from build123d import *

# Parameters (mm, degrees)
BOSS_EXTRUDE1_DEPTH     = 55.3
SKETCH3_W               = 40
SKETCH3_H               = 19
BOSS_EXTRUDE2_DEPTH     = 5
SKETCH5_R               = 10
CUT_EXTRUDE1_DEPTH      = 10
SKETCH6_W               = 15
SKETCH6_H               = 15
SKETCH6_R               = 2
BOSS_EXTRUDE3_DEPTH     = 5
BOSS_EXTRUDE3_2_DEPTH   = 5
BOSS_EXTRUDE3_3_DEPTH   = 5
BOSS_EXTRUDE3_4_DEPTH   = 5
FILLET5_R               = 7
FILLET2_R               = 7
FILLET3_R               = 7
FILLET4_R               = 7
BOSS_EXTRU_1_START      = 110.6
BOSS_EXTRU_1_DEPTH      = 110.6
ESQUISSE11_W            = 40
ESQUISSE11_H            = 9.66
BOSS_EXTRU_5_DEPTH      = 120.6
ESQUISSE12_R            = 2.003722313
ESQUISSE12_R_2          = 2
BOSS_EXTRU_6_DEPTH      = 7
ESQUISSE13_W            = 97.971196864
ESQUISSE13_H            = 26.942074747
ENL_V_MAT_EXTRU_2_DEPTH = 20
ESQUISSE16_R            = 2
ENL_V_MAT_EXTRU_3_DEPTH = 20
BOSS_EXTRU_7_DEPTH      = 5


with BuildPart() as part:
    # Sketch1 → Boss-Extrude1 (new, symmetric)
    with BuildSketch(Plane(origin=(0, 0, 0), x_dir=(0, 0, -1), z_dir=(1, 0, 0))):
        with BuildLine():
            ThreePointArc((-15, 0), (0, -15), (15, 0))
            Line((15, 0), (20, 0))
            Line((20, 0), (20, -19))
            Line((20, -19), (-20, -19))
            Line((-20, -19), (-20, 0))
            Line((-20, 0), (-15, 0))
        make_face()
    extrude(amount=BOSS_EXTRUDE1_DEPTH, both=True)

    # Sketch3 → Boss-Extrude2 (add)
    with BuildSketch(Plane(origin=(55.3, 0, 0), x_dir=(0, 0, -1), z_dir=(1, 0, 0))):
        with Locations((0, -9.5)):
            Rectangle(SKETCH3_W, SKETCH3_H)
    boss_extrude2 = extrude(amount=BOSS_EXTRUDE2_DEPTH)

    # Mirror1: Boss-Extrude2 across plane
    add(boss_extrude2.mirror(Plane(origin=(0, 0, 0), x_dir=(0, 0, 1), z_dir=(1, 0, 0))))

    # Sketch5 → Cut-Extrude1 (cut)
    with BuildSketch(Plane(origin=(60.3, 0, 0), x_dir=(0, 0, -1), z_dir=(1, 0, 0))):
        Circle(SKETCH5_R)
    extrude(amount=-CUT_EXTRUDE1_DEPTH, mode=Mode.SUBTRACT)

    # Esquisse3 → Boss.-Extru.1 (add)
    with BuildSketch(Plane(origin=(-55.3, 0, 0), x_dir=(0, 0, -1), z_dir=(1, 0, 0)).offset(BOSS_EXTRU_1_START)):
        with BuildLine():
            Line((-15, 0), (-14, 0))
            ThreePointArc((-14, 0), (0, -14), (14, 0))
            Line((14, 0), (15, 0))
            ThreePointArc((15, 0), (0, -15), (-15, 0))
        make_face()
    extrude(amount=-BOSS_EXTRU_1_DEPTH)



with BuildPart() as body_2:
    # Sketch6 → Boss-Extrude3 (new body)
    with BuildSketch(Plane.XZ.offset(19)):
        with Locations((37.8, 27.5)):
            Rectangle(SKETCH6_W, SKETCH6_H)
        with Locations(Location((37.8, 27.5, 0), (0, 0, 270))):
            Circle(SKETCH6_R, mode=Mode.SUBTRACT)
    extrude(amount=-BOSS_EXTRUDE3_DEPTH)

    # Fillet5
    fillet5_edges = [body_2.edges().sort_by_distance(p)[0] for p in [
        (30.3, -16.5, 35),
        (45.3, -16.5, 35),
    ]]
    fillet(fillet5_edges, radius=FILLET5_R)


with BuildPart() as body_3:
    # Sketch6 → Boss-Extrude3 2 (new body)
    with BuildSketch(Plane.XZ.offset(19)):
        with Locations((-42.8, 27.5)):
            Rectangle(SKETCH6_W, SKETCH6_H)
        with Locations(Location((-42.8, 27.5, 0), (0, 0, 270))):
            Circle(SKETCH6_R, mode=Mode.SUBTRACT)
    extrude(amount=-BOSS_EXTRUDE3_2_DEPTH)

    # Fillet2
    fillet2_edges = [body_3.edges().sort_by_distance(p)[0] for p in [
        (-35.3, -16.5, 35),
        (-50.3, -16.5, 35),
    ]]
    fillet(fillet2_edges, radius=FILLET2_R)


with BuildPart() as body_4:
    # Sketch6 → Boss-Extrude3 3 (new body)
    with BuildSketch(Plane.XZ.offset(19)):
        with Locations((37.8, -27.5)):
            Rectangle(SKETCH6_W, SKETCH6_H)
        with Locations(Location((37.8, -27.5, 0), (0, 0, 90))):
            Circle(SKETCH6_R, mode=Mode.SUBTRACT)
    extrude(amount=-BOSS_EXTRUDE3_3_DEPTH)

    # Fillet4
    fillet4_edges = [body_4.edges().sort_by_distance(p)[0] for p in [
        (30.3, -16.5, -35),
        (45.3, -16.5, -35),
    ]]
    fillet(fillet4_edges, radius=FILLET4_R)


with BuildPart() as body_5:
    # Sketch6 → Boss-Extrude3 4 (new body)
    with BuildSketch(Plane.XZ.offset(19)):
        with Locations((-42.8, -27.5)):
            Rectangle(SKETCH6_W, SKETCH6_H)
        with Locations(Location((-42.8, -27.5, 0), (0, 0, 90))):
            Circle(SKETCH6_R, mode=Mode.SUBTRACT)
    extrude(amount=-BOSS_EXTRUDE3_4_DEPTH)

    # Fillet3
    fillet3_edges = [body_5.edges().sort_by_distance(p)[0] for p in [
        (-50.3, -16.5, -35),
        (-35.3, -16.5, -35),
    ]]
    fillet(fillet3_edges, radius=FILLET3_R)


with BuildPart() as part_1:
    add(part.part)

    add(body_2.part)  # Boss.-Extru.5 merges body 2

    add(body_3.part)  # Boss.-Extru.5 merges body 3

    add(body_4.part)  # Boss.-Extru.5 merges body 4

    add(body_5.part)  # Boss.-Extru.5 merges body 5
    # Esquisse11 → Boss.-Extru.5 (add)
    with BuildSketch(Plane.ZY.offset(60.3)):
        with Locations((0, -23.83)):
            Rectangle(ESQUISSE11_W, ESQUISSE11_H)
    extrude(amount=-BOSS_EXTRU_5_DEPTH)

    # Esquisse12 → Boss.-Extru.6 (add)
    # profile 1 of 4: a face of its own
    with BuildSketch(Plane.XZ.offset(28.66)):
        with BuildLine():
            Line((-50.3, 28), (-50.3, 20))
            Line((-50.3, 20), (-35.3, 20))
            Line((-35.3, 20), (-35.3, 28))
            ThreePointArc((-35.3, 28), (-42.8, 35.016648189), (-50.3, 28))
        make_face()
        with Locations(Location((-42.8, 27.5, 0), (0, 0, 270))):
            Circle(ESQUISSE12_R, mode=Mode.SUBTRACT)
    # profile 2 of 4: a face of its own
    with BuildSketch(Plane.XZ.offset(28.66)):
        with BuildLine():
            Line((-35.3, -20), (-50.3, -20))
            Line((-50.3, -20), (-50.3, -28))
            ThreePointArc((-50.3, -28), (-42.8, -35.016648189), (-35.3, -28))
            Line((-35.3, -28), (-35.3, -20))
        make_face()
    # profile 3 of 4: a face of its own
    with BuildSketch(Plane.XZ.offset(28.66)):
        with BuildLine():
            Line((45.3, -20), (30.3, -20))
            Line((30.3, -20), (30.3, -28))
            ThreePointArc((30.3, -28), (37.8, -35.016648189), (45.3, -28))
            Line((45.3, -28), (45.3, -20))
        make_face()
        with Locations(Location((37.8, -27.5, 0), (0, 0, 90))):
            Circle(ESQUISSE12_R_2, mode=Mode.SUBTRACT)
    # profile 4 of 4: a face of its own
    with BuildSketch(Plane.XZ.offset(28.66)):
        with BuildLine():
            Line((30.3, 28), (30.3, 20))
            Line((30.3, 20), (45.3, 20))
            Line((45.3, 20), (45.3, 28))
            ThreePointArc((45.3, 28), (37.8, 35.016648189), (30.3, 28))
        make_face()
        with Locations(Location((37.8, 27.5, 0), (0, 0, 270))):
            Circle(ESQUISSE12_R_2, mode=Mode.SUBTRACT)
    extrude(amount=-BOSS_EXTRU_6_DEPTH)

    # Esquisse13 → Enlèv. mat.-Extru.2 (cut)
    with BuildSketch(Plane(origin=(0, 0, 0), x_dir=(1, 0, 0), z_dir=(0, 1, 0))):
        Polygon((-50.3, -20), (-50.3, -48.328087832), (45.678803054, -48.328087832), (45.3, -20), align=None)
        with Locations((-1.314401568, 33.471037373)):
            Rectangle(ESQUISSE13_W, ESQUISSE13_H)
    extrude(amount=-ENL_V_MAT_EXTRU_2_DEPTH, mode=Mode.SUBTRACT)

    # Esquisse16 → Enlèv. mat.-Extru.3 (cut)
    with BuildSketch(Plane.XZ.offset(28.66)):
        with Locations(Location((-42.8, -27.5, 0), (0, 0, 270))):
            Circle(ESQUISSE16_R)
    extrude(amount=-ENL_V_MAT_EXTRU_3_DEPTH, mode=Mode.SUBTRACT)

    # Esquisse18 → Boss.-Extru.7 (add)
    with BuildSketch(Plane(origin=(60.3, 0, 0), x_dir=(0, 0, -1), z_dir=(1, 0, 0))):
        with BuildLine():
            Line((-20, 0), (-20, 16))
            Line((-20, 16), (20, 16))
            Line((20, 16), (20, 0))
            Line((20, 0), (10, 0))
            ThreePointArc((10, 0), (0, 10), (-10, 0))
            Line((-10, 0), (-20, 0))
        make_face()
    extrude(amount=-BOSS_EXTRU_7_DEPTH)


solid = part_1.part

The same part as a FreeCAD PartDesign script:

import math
import FreeCAD as App
import Part
import Sketcher


def edges_at(feature, points):
    """Names of the edges that pass closest to the given points."""
    edges = feature.Shape.Edges
    near = lambda p: min(range(len(edges)), key=lambda i: edges[i].distToShape(Part.Vertex(*p))[0])
    return sorted({f"Edge{near(p) + 1}" for p in points})

doc = App.newDocument("Part")
body = doc.addObject("PartDesign::Body", "Body")

sketch1 = body.newObject("Sketcher::SketchObject", "Sketch")
sketch1.AttachmentSupport = (doc.getObject("YZ_Plane"), [""])
sketch1.MapMode = "FlatFace"
sketch1.addGeometry([
    Part.ArcOfCircle(Part.Circle(App.Vector(0, 0, 0), App.Vector(0, 0, 1), 15), math.radians(90), math.radians(270)),
    Part.LineSegment(App.Vector(0, 15, 0), App.Vector(0, 20, 0)),
    Part.LineSegment(App.Vector(0, 20, 0), App.Vector(-19, 20, 0)),
    Part.LineSegment(App.Vector(-19, 20, 0), App.Vector(-19, -20, 0)),
    Part.LineSegment(App.Vector(-19, -20, 0), App.Vector(0, -20, 0)),
    Part.LineSegment(App.Vector(0, -20, 0), App.Vector(0, -15, 0)),
], False)
sketch1.addConstraint([
    Sketcher.Constraint("Coincident", 0, 1, 1, 1),
    Sketcher.Constraint("Coincident", 1, 2, 2, 1),
    Sketcher.Constraint("Coincident", 2, 2, 3, 1),
    Sketcher.Constraint("Coincident", 3, 2, 4, 1),
    Sketcher.Constraint("Coincident", 4, 2, 5, 1),
    Sketcher.Constraint("Coincident", 5, 2, 0, 2),
    Sketcher.Constraint("Vertical", 1),
    Sketcher.Constraint("Horizontal", 2),
    Sketcher.Constraint("Vertical", 3),
    Sketcher.Constraint("Horizontal", 4),
    Sketcher.Constraint("Vertical", 5),
    Sketcher.Constraint("Coincident", 0, 3, -1, 1),
    Sketcher.Constraint("Symmetric", 1, 2, 4, 2, -1, 1),
    Sketcher.Constraint("PointOnObject", 0, 1, -2),
    Sketcher.Constraint("Radius", 0, 15.0),
    Sketcher.Constraint("DistanceX", 2, 2, 2, 1, 19.0),
    Sketcher.Constraint("DistanceY", 1, 1, 1, 2, 5.0),
])
pad1 = body.newObject("PartDesign::Pad", "Pad")
pad1.Profile = sketch1
pad1.Length = 110.6
pad1.Midplane = True

sketch2 = body.newObject("Sketcher::SketchObject", "Sketch001")
sketch2.AttachmentSupport = (doc.getObject("YZ_Plane"), [""])
sketch2.MapMode = "FlatFace"
sketch2.AttachmentOffset = App.Placement(App.Vector(0, 0, 55.3), App.Rotation())
sketch2.addGeometry([
    Part.LineSegment(App.Vector(0, 20, 0), App.Vector(-19, 20, 0)),
    Part.LineSegment(App.Vector(-19, 20, 0), App.Vector(-19, -20, 0)),
    Part.LineSegment(App.Vector(-19, -20, 0), App.Vector(0, -20, 0)),
    Part.LineSegment(App.Vector(0, -20, 0), App.Vector(0, 20, 0)),
], False)
sketch2.addConstraint([
    Sketcher.Constraint("Coincident", 0, 2, 1, 1),
    Sketcher.Constraint("Coincident", 1, 2, 2, 1),
    Sketcher.Constraint("Coincident", 2, 2, 3, 1),
    Sketcher.Constraint("Coincident", 3, 2, 0, 1),
    Sketcher.Constraint("Horizontal", 0),
    Sketcher.Constraint("Vertical", 1),
    Sketcher.Constraint("Horizontal", 2),
    Sketcher.Constraint("Vertical", 3),
    Sketcher.Constraint("Symmetric", 2, 2, 3, 2, -1, 1),
    Sketcher.Constraint("DistanceX", 0, 2, 0, 1, 19.0),
    Sketcher.Constraint("DistanceY", 1, 2, 1, 1, 40.0),
])
pad2 = body.newObject("PartDesign::Pad", "Pad001")
pad2.Profile = sketch2
pad2.Length = 5
doc.recompute()

mirrored = body.newObject("PartDesign::Mirrored", "Mirrored")
mirrored.Originals = [pad2]
mirrored.MirrorPlane = (doc.getObject("YZ_Plane"), [""])
body.Tip = mirrored

sketch3 = body.newObject("Sketcher::SketchObject", "Sketch002")
sketch3.AttachmentSupport = (doc.getObject("YZ_Plane"), [""])
sketch3.MapMode = "FlatFace"
sketch3.AttachmentOffset = App.Placement(App.Vector(0, 0, 60.3), App.Rotation())
sketch3.addGeometry(Part.Circle(App.Vector(0, 0, 0), App.Vector(0, 0, 1), 10), False)
sketch3.addConstraint([
    Sketcher.Constraint("Coincident", 0, 3, -1, 1),
    Sketcher.Constraint("Diameter", 0, 20.0),
])
pocket1 = body.newObject("PartDesign::Pocket", "Pocket")
pocket1.Profile = sketch3
pocket1.Length = 10

sketch4 = body.newObject("Sketcher::SketchObject", "Sketch003")
sketch4.AttachmentSupport = (doc.getObject("YZ_Plane"), [""])
sketch4.MapMode = "FlatFace"
sketch4.AttachmentOffset = App.Placement(App.Vector(0, 0, 55.3), App.Rotation())
sketch4.addGeometry([
    Part.LineSegment(App.Vector(0, 14, 0), App.Vector(0, 15, 0)),
    Part.ArcOfCircle(Part.Circle(App.Vector(0, 0, 0), App.Vector(0, 0, 1), 15), math.radians(90), math.radians(270)),
    Part.LineSegment(App.Vector(0, -15, 0), App.Vector(0, -14, 0)),
    Part.ArcOfCircle(Part.Circle(App.Vector(0, 0, 0), App.Vector(0, 0, 1), 14), math.radians(90), math.radians(270)),
], False)
sketch4.addConstraint([
    Sketcher.Constraint("Coincident", 0, 2, 1, 1),
    Sketcher.Constraint("Coincident", 1, 2, 2, 1),
    Sketcher.Constraint("Coincident", 2, 2, 3, 2),
    Sketcher.Constraint("Coincident", 3, 1, 0, 1),
    Sketcher.Constraint("Vertical", 0),
    Sketcher.Constraint("Vertical", 2),
    Sketcher.Constraint("Coincident", 1, 3, -1, 1),
    Sketcher.Constraint("Coincident", 3, 3, -1, 1),
    Sketcher.Constraint("PointOnObject", 0, 2, -2),
    Sketcher.Constraint("PointOnObject", 1, 2, -2),
    Sketcher.Constraint("Radius", 1, 15.0),
    Sketcher.Constraint("Radius", 3, 14.0),
])
pad3 = body.newObject("PartDesign::Pad", "Pad002")
pad3.Profile = sketch4
pad3.Length = 110.6
pad3.Reversed = True
body2 = doc.addObject("PartDesign::Body", "Body001")

sketch5 = body2.newObject("Sketcher::SketchObject", "Sketch004")
sketch5.AttachmentSupport = (doc.getObject("XZ_Plane001"), [""])
sketch5.MapMode = "FlatFace"
sketch5.AttachmentOffset = App.Placement(App.Vector(0, 0, 19), App.Rotation())
sketch5.addGeometry([
    Part.LineSegment(App.Vector(30.3, 35, 0), App.Vector(30.3, 20, 0)),
    Part.LineSegment(App.Vector(30.3, 20, 0), App.Vector(45.3, 20, 0)),
    Part.LineSegment(App.Vector(45.3, 20, 0), App.Vector(45.3, 35, 0)),
    Part.LineSegment(App.Vector(45.3, 35, 0), App.Vector(30.3, 35, 0)),
    Part.Circle(App.Vector(37.8, 27.5, 0), App.Vector(0, 0, 1), 2),
], False)
sketch5.addConstraint([
    Sketcher.Constraint("Coincident", 0, 2, 1, 1),
    Sketcher.Constraint("Coincident", 1, 2, 2, 1),
    Sketcher.Constraint("Coincident", 2, 2, 3, 1),
    Sketcher.Constraint("Coincident", 3, 2, 0, 1),
    Sketcher.Constraint("Vertical", 0),
    Sketcher.Constraint("Horizontal", 1),
    Sketcher.Constraint("Vertical", 2),
    Sketcher.Constraint("Horizontal", 3),
    Sketcher.Constraint("Equal", 3, 0),
    Sketcher.Constraint("Diameter", 4, 4.0),
    Sketcher.Constraint("DistanceX", 1, 1, 1, 2, 15.0),
    Sketcher.Constraint("DistanceY", -1, 1, 0, 2, 20.0),
    Sketcher.Constraint("DistanceX", -1, 1, 4, 3, 37.8),
    Sketcher.Constraint("DistanceY", -1, 1, 4, 3, 27.5),
    Sketcher.Constraint("DistanceX", -1, 1, 0, 2, 30.3),
])
pad4 = body2.newObject("PartDesign::Pad", "Pad003")
pad4.Profile = sketch5
pad4.Length = 5
pad4.Reversed = True
doc.recompute()

fillet = body2.newObject("PartDesign::Fillet", "Fillet")
fillet.Base = (pad4, edges_at(pad4, [(30.3, -16.5, 35), (45.3, -16.5, 35)]))
fillet.Radius = 7
body3 = doc.addObject("PartDesign::Body", "Body002")

sketch6 = body3.newObject("Sketcher::SketchObject", "Sketch005")
sketch6.AttachmentSupport = (doc.getObject("XZ_Plane002"), [""])
sketch6.MapMode = "FlatFace"
sketch6.AttachmentOffset = App.Placement(App.Vector(0, 0, 19), App.Rotation())
sketch6.addGeometry([
    Part.LineSegment(App.Vector(-50.3, 35, 0), App.Vector(-50.3, 20, 0)),
    Part.LineSegment(App.Vector(-50.3, 20, 0), App.Vector(-35.3, 20, 0)),
    Part.LineSegment(App.Vector(-35.3, 20, 0), App.Vector(-35.3, 35, 0)),
    Part.LineSegment(App.Vector(-35.3, 35, 0), App.Vector(-50.3, 35, 0)),
    Part.Circle(App.Vector(-42.8, 27.5, 0), App.Vector(0, 0, 1), 2),
], False)
sketch6.addConstraint([
    Sketcher.Constraint("Coincident", 0, 2, 1, 1),
    Sketcher.Constraint("Coincident", 1, 2, 2, 1),
    Sketcher.Constraint("Coincident", 2, 2, 3, 1),
    Sketcher.Constraint("Coincident", 3, 2, 0, 1),
    Sketcher.Constraint("Vertical", 0),
    Sketcher.Constraint("Horizontal", 1),
    Sketcher.Constraint("Vertical", 2),
    Sketcher.Constraint("Horizontal", 3),
    Sketcher.Constraint("Equal", 3, 0),
    Sketcher.Constraint("Diameter", 4, 4.0),
    Sketcher.Constraint("DistanceX", 1, 1, 1, 2, 15.0),
    Sketcher.Constraint("DistanceY", -1, 1, 0, 2, 20.0),
    Sketcher.Constraint("DistanceX", 4, 3, -1, 1, 42.8),
    Sketcher.Constraint("DistanceY", -1, 1, 4, 3, 27.5),
    Sketcher.Constraint("DistanceX", 0, 2, -1, 1, 50.3),
])
pad5 = body3.newObject("PartDesign::Pad", "Pad004")
pad5.Profile = sketch6
pad5.Length = 5
pad5.Reversed = True
doc.recompute()

fillet2 = body3.newObject("PartDesign::Fillet", "Fillet001")
fillet2.Base = (pad5, edges_at(pad5, [(-35.3, -16.5, 35), (-50.3, -16.5, 35)]))
fillet2.Radius = 7
body4 = doc.addObject("PartDesign::Body", "Body003")

sketch7 = body4.newObject("Sketcher::SketchObject", "Sketch006")
sketch7.AttachmentSupport = (doc.getObject("XZ_Plane003"), [""])
sketch7.MapMode = "FlatFace"
sketch7.AttachmentOffset = App.Placement(App.Vector(0, 0, 19), App.Rotation())
sketch7.addGeometry([
    Part.LineSegment(App.Vector(30.3, -20, 0), App.Vector(30.3, -35, 0)),
    Part.LineSegment(App.Vector(30.3, -35, 0), App.Vector(45.3, -35, 0)),
    Part.LineSegment(App.Vector(45.3, -35, 0), App.Vector(45.3, -20, 0)),
    Part.LineSegment(App.Vector(45.3, -20, 0), App.Vector(30.3, -20, 0)),
    Part.Circle(App.Vector(37.8, -27.5, 0), App.Vector(0, 0, 1), 2),
], False)
sketch7.addConstraint([
    Sketcher.Constraint("Coincident", 0, 2, 1, 1),
    Sketcher.Constraint("Coincident", 1, 2, 2, 1),
    Sketcher.Constraint("Coincident", 2, 2, 3, 1),
    Sketcher.Constraint("Coincident", 3, 2, 0, 1),
    Sketcher.Constraint("Vertical", 0),
    Sketcher.Constraint("Horizontal", 1),
    Sketcher.Constraint("Vertical", 2),
    Sketcher.Constraint("Horizontal", 3),
    Sketcher.Constraint("Equal", 3, 0),
    Sketcher.Constraint("Diameter", 4, 4.0),
    Sketcher.Constraint("DistanceX", 1, 1, 1, 2, 15.0),
    Sketcher.Constraint("DistanceY", 0, 2, -1, 1, 35.0),
    Sketcher.Constraint("DistanceX", -1, 1, 4, 3, 37.8),
    Sketcher.Constraint("DistanceY", 4, 3, -1, 1, 27.5),
    Sketcher.Constraint("DistanceX", -1, 1, 0, 2, 30.3),
])
pad6 = body4.newObject("PartDesign::Pad", "Pad005")
pad6.Profile = sketch7
pad6.Length = 5
pad6.Reversed = True
doc.recompute()

fillet3 = body4.newObject("PartDesign::Fillet", "Fillet002")
fillet3.Base = (pad6, edges_at(pad6, [(30.3, -16.5, -35), (45.3, -16.5, -35)]))
fillet3.Radius = 7
body5 = doc.addObject("PartDesign::Body", "Body004")

sketch8 = body5.newObject("Sketcher::SketchObject", "Sketch007")
sketch8.AttachmentSupport = (doc.getObject("XZ_Plane004"), [""])
sketch8.MapMode = "FlatFace"
sketch8.AttachmentOffset = App.Placement(App.Vector(0, 0, 19), App.Rotation())
sketch8.addGeometry([
    Part.LineSegment(App.Vector(-50.3, -20, 0), App.Vector(-50.3, -35, 0)),
    Part.LineSegment(App.Vector(-50.3, -35, 0), App.Vector(-35.3, -35, 0)),
    Part.LineSegment(App.Vector(-35.3, -35, 0), App.Vector(-35.3, -20, 0)),
    Part.LineSegment(App.Vector(-35.3, -20, 0), App.Vector(-50.3, -20, 0)),
    Part.Circle(App.Vector(-42.8, -27.5, 0), App.Vector(0, 0, 1), 2),
], False)
sketch8.addConstraint([
    Sketcher.Constraint("Coincident", 0, 2, 1, 1),
    Sketcher.Constraint("Coincident", 1, 2, 2, 1),
    Sketcher.Constraint("Coincident", 2, 2, 3, 1),
    Sketcher.Constraint("Coincident", 3, 2, 0, 1),
    Sketcher.Constraint("Vertical", 0),
    Sketcher.Constraint("Horizontal", 1),
    Sketcher.Constraint("Vertical", 2),
    Sketcher.Constraint("Horizontal", 3),
    Sketcher.Constraint("Equal", 3, 0),
    Sketcher.Constraint("Diameter", 4, 4.0),
    Sketcher.Constraint("DistanceX", 1, 1, 1, 2, 15.0),
    Sketcher.Constraint("DistanceY", 0, 2, -1, 1, 35.0),
    Sketcher.Constraint("DistanceX", 4, 3, -1, 1, 42.8),
    Sketcher.Constraint("DistanceY", 4, 3, -1, 1, 27.5),
    Sketcher.Constraint("DistanceX", 0, 2, -1, 1, 50.3),
])
pad7 = body5.newObject("PartDesign::Pad", "Pad006")
pad7.Profile = sketch8
pad7.Length = 5
pad7.Reversed = True
doc.recompute()

fillet4 = body5.newObject("PartDesign::Fillet", "Fillet003")
fillet4.Base = (pad7, edges_at(pad7, [(-50.3, -16.5, -35), (-35.3, -16.5, -35)]))
fillet4.Radius = 7
doc.recompute()

boolean = body.newObject("PartDesign::Boolean", "Boolean")
boolean.Type = "Fuse"
boolean.addObjects([body2])
doc.recompute()

boolean2 = body.newObject("PartDesign::Boolean", "Boolean001")
boolean2.Type = "Fuse"
boolean2.addObjects([body3])
doc.recompute()

boolean3 = body.newObject("PartDesign::Boolean", "Boolean002")
boolean3.Type = "Fuse"
boolean3.addObjects([body4])
doc.recompute()

boolean4 = body.newObject("PartDesign::Boolean", "Boolean003")
boolean4.Type = "Fuse"
boolean4.addObjects([body5])

sketch9 = body.newObject("Sketcher::SketchObject", "Sketch008")
sketch9.AttachmentSupport = (doc.getObject("YZ_Plane"), [""])
sketch9.MapMode = "FlatFace"
sketch9.AttachmentOffset = App.Placement(App.Vector(0, 0, -60.3), App.Rotation())
sketch9.addGeometry([
    Part.LineSegment(App.Vector(-19, -20, 0), App.Vector(-29, -20, 0)),
    Part.LineSegment(App.Vector(-29, -20, 0), App.Vector(-29, 20, 0)),
    Part.LineSegment(App.Vector(-29, 20, 0), App.Vector(-19, 20, 0)),
    Part.LineSegment(App.Vector(-19, 20, 0), App.Vector(-19, -20, 0)),
], False)
sketch9.addConstraint([
    Sketcher.Constraint("Coincident", 0, 2, 1, 1),
    Sketcher.Constraint("Coincident", 1, 2, 2, 1),
    Sketcher.Constraint("Coincident", 2, 2, 3, 1),
    Sketcher.Constraint("Coincident", 3, 2, 0, 1),
    Sketcher.Constraint("Horizontal", 0),
    Sketcher.Constraint("Vertical", 1),
    Sketcher.Constraint("Horizontal", 2),
    Sketcher.Constraint("Vertical", 3),
    Sketcher.Constraint("DistanceY", 1, 1, 1, 2, 40.0),
    Sketcher.Constraint("DistanceY", 0, 2, -1, 1, 20.0),
    Sketcher.Constraint("DistanceX", 2, 2, -1, 1, 19.0),
    Sketcher.Constraint("DistanceX", 0, 2, 0, 1, 9.66),
])
pad8 = body.newObject("PartDesign::Pad", "Pad007")
pad8.Profile = sketch9
pad8.Length = 120.6

sketch10 = body.newObject("Sketcher::SketchObject", "Sketch009")
sketch10.AttachmentSupport = (doc.getObject("XZ_Plane"), [""])
sketch10.MapMode = "FlatFace"
sketch10.AttachmentOffset = App.Placement(App.Vector(0, 0, 28.66), App.Rotation())
sketch10.addGeometry([
    Part.LineSegment(App.Vector(-50.3, 28, 0), App.Vector(-50.3, 20, 0)),
    Part.LineSegment(App.Vector(-50.3, 20, 0), App.Vector(-35.3, 20, 0)),
    Part.LineSegment(App.Vector(-35.3, 20, 0), App.Vector(-35.3, 28, 0)),
    Part.ArcOfCircle(Part.Circle(App.Vector(-42.8, 27.5, 0), App.Vector(0, 0, 1), 7.5), math.radians(4), math.radians(176)),
    Part.Circle(App.Vector(-42.8, 27.5, 0), App.Vector(0, 0, 1), 2),
    Part.LineSegment(App.Vector(-35.3, -20, 0), App.Vector(-50.3, -20, 0)),
    Part.LineSegment(App.Vector(-50.3, -20, 0), App.Vector(-50.3, -28, 0)),
    Part.ArcOfCircle(Part.Circle(App.Vector(-42.8, -27.5, 0), App.Vector(0, 0, 1), 7.5), math.radians(-176), math.radians(-4)),
    Part.LineSegment(App.Vector(-35.3, -28, 0), App.Vector(-35.3, -20, 0)),
    Part.LineSegment(App.Vector(45.3, -20, 0), App.Vector(30.3, -20, 0)),
    Part.LineSegment(App.Vector(30.3, -20, 0), App.Vector(30.3, -28, 0)),
    Part.ArcOfCircle(Part.Circle(App.Vector(37.8, -27.5, 0), App.Vector(0, 0, 1), 7.5), math.radians(-176), math.radians(-4)),
    Part.LineSegment(App.Vector(45.3, -28, 0), App.Vector(45.3, -20, 0)),
    Part.Circle(App.Vector(37.8, -27.5, 0), App.Vector(0, 0, 1), 2),
    Part.LineSegment(App.Vector(30.3, 28, 0), App.Vector(30.3, 20, 0)),
    Part.LineSegment(App.Vector(30.3, 20, 0), App.Vector(45.3, 20, 0)),
    Part.LineSegment(App.Vector(45.3, 20, 0), App.Vector(45.3, 28, 0)),
    Part.ArcOfCircle(Part.Circle(App.Vector(37.8, 27.5, 0), App.Vector(0, 0, 1), 7.5), math.radians(4), math.radians(176)),
    Part.Circle(App.Vector(37.8, 27.5, 0), App.Vector(0, 0, 1), 2),
], False)
sketch10.addConstraint([
    Sketcher.Constraint("Coincident", 0, 2, 1, 1),
    Sketcher.Constraint("Coincident", 1, 2, 2, 1),
    Sketcher.Constraint("Coincident", 2, 2, 3, 1),
    Sketcher.Constraint("Coincident", 3, 2, 0, 1),
    Sketcher.Constraint("Coincident", 5, 2, 6, 1),
    Sketcher.Constraint("Coincident", 6, 2, 7, 1),
    Sketcher.Constraint("Coincident", 7, 2, 8, 1),
    Sketcher.Constraint("Coincident", 8, 2, 5, 1),
    Sketcher.Constraint("Coincident", 9, 2, 10, 1),
    Sketcher.Constraint("Coincident", 10, 2, 11, 1),
    Sketcher.Constraint("Coincident", 11, 2, 12, 1),
    Sketcher.Constraint("Coincident", 12, 2, 9, 1),
    Sketcher.Constraint("Coincident", 14, 2, 15, 1),
    Sketcher.Constraint("Coincident", 15, 2, 16, 1),
    Sketcher.Constraint("Coincident", 16, 2, 17, 1),
    Sketcher.Constraint("Coincident", 17, 2, 14, 1),
    Sketcher.Constraint("Vertical", 0),
    Sketcher.Constraint("Horizontal", 1),
    Sketcher.Constraint("Vertical", 2),
    Sketcher.Constraint("Horizontal", 5),
    Sketcher.Constraint("Vertical", 6),
    Sketcher.Constraint("Vertical", 8),
    Sketcher.Constraint("Horizontal", 9),
    Sketcher.Constraint("Vertical", 10),
    Sketcher.Constraint("Vertical", 12),
    Sketcher.Constraint("Vertical", 14),
    Sketcher.Constraint("Horizontal", 15),
    Sketcher.Constraint("Vertical", 16),
    Sketcher.Constraint("Coincident", 4, 3, 3, 3),
    Sketcher.Constraint("Coincident", 13, 3, 11, 3),
    Sketcher.Constraint("Coincident", 18, 3, 17, 3),
    Sketcher.Constraint("Equal", 3, 7),
    Sketcher.Constraint("Equal", 7, 11),
    Sketcher.Constraint("Equal", 11, 17),
    Sketcher.Constraint("Equal", 13, 18),
    Sketcher.Constraint("Symmetric", 3, 3, 7, 3, -1),
    Sketcher.Constraint("Symmetric", 11, 3, 17, 3, -1),
    Sketcher.Constraint("Symmetric", 0, 2, 5, 2, -1),
    Sketcher.Constraint("Symmetric", 9, 2, 14, 2, -1),
    Sketcher.Constraint("Horizontal", 7, 3, 11, 3),
    Sketcher.Constraint("Horizontal", 2, 2, 3, 2),
    Sketcher.Constraint("Horizontal", 6, 2, 7, 2),
    Sketcher.Constraint("Horizontal", 8, 2, 9, 2),
    Sketcher.Constraint("Horizontal", 7, 2, 10, 2),
    Sketcher.Constraint("Horizontal", 10, 2, 11, 2),
    Sketcher.Constraint("Horizontal", 3, 2, 16, 2),
    Sketcher.Constraint("Diameter", 13, 4.0),
    Sketcher.Constraint("DistanceX", 1, 1, 1, 2, 15.0),
    Sketcher.Constraint("DistanceY", 0, 2, 0, 1, 8.0),
    Sketcher.Constraint("DistanceY", -1, 1, 0, 2, 20.0),
    Sketcher.Constraint("DistanceY", 7, 3, 3, 3, 55.0),
    Sketcher.Constraint("DistanceX", 3, 3, -1, 1, 42.8),
    Sketcher.Constraint("DistanceX", -1, 1, 11, 3, 37.8),
    Sketcher.Constraint("Diameter", 4, 4.007445),
])
pad9 = body.newObject("PartDesign::Pad", "Pad008")
pad9.Profile = sketch10
pad9.Length = 7
pad9.Reversed = True

sketch11 = body.newObject("Sketcher::SketchObject", "Sketch010")
sketch11.AttachmentSupport = (doc.getObject("XZ_Plane"), [""])
sketch11.MapMode = "FlatFace"
sketch11.addGeometry([
    Part.LineSegment(App.Vector(-50, 20, 0), App.Vector(-50, 48, 0)),
    Part.LineSegment(App.Vector(-50, 48, 0), App.Vector(46, 48, 0)),
    Part.LineSegment(App.Vector(46, 48, 0), App.Vector(45, 20, 0)),
    Part.LineSegment(App.Vector(45, 20, 0), App.Vector(-50, 20, 0)),
    Part.LineSegment(App.Vector(-50, -47, 0), App.Vector(-50, -20, 0)),
    Part.LineSegment(App.Vector(-50, -20, 0), App.Vector(48, -20, 0)),
    Part.LineSegment(App.Vector(48, -20, 0), App.Vector(48, -47, 0)),
    Part.LineSegment(App.Vector(48, -47, 0), App.Vector(-50, -47, 0)),
], False)
sketch11.addConstraint([
    Sketcher.Constraint("Coincident", 0, 2, 1, 1),
    Sketcher.Constraint("Coincident", 1, 2, 2, 1),
    Sketcher.Constraint("Coincident", 2, 2, 3, 1),
    Sketcher.Constraint("Coincident", 3, 2, 0, 1),
    Sketcher.Constraint("Coincident", 4, 2, 5, 1),
    Sketcher.Constraint("Coincident", 5, 2, 6, 1),
    Sketcher.Constraint("Coincident", 6, 2, 7, 1),
    Sketcher.Constraint("Coincident", 7, 2, 4, 1),
    Sketcher.Constraint("Vertical", 0),
    Sketcher.Constraint("Horizontal", 1),
    Sketcher.Constraint("Horizontal", 3),
    Sketcher.Constraint("Vertical", 4),
    Sketcher.Constraint("Horizontal", 5),
    Sketcher.Constraint("Vertical", 6),
    Sketcher.Constraint("Horizontal", 7),
    Sketcher.Constraint("Symmetric", 3, 2, 4, 2, -1),
    Sketcher.Constraint("DistanceX", 3, 2, 3, 1, 95.6),
    Sketcher.Constraint("DistanceY", -1, 1, 2, 2, 20.0),
    Sketcher.Constraint("DistanceX", 0, 2, -1, 1, 50.3),
    Sketcher.Constraint("Distance", 2, 28.33062),
    Sketcher.Constraint("DistanceX", 1, 1, 1, 2, 95.978803),
    Sketcher.Constraint("DistanceX", 5, 1, 5, 2, 97.971197),
    Sketcher.Constraint("DistanceY", 4, 1, 4, 2, 26.942075),
])
pocket2 = body.newObject("PartDesign::Pocket", "Pocket001")
pocket2.Profile = sketch11
pocket2.Length = 20
pocket2.Reversed = True

sketch12 = body.newObject("Sketcher::SketchObject", "Sketch011")
sketch12.AttachmentSupport = (doc.getObject("XZ_Plane"), [""])
sketch12.MapMode = "FlatFace"
sketch12.AttachmentOffset = App.Placement(App.Vector(0, 0, 28.66), App.Rotation())
sketch12.addGeometry(Part.Circle(App.Vector(-42.8, -27.5, 0), App.Vector(0, 0, 1), 2), False)
sketch12.addConstraint([
    Sketcher.Constraint("Diameter", 0, 4.0),
    Sketcher.Constraint("DistanceX", 0, 3, -1, 1, 42.8),
    Sketcher.Constraint("DistanceY", 0, 3, -1, 1, 27.5),
])
pocket3 = body.newObject("PartDesign::Pocket", "Pocket002")
pocket3.Profile = sketch12
pocket3.Length = 20

sketch13 = body.newObject("Sketcher::SketchObject", "Sketch012")
sketch13.AttachmentSupport = (doc.getObject("YZ_Plane"), [""])
sketch13.MapMode = "FlatFace"
sketch13.AttachmentOffset = App.Placement(App.Vector(0, 0, 60.3), App.Rotation())
sketch13.addGeometry([
    Part.LineSegment(App.Vector(16, 20, 0), App.Vector(0, 20, 0)),
    Part.LineSegment(App.Vector(0, 20, 0), App.Vector(0, 10, 0)),
    Part.ArcOfCircle(Part.Circle(App.Vector(0, 0, 0), App.Vector(0, 0, 1), 10), math.radians(-90), math.radians(90)),
    Part.LineSegment(App.Vector(0, -10, 0), App.Vector(0, -20, 0)),
    Part.LineSegment(App.Vector(0, -20, 0), App.Vector(16, -20, 0)),
    Part.LineSegment(App.Vector(16, -20, 0), App.Vector(16, 20, 0)),
], False)
sketch13.addConstraint([
    Sketcher.Constraint("Coincident", 0, 2, 1, 1),
    Sketcher.Constraint("Coincident", 1, 2, 2, 2),
    Sketcher.Constraint("Coincident", 2, 1, 3, 1),
    Sketcher.Constraint("Coincident", 3, 2, 4, 1),
    Sketcher.Constraint("Coincident", 4, 2, 5, 1),
    Sketcher.Constraint("Coincident", 5, 2, 0, 1),
    Sketcher.Constraint("Horizontal", 0),
    Sketcher.Constraint("Vertical", 1),
    Sketcher.Constraint("Vertical", 3),
    Sketcher.Constraint("Horizontal", 4),
    Sketcher.Constraint("Vertical", 5),
    Sketcher.Constraint("Coincident", 2, 3, -1, 1),
    Sketcher.Constraint("Symmetric", 0, 2, 3, 2, -1, 1),
    Sketcher.Constraint("PointOnObject", 0, 2, -2),
    Sketcher.Constraint("Radius", 2, 10.0),
    Sketcher.Constraint("DistanceX", 0, 2, 0, 1, 16.0),
    Sketcher.Constraint("DistanceY", 1, 2, 1, 1, 10.0),
])
pad10 = body.newObject("PartDesign::Pad", "Pad009")
pad10.Profile = sketch13
pad10.Length = 5
pad10.Reversed = True

doc.recompute()
